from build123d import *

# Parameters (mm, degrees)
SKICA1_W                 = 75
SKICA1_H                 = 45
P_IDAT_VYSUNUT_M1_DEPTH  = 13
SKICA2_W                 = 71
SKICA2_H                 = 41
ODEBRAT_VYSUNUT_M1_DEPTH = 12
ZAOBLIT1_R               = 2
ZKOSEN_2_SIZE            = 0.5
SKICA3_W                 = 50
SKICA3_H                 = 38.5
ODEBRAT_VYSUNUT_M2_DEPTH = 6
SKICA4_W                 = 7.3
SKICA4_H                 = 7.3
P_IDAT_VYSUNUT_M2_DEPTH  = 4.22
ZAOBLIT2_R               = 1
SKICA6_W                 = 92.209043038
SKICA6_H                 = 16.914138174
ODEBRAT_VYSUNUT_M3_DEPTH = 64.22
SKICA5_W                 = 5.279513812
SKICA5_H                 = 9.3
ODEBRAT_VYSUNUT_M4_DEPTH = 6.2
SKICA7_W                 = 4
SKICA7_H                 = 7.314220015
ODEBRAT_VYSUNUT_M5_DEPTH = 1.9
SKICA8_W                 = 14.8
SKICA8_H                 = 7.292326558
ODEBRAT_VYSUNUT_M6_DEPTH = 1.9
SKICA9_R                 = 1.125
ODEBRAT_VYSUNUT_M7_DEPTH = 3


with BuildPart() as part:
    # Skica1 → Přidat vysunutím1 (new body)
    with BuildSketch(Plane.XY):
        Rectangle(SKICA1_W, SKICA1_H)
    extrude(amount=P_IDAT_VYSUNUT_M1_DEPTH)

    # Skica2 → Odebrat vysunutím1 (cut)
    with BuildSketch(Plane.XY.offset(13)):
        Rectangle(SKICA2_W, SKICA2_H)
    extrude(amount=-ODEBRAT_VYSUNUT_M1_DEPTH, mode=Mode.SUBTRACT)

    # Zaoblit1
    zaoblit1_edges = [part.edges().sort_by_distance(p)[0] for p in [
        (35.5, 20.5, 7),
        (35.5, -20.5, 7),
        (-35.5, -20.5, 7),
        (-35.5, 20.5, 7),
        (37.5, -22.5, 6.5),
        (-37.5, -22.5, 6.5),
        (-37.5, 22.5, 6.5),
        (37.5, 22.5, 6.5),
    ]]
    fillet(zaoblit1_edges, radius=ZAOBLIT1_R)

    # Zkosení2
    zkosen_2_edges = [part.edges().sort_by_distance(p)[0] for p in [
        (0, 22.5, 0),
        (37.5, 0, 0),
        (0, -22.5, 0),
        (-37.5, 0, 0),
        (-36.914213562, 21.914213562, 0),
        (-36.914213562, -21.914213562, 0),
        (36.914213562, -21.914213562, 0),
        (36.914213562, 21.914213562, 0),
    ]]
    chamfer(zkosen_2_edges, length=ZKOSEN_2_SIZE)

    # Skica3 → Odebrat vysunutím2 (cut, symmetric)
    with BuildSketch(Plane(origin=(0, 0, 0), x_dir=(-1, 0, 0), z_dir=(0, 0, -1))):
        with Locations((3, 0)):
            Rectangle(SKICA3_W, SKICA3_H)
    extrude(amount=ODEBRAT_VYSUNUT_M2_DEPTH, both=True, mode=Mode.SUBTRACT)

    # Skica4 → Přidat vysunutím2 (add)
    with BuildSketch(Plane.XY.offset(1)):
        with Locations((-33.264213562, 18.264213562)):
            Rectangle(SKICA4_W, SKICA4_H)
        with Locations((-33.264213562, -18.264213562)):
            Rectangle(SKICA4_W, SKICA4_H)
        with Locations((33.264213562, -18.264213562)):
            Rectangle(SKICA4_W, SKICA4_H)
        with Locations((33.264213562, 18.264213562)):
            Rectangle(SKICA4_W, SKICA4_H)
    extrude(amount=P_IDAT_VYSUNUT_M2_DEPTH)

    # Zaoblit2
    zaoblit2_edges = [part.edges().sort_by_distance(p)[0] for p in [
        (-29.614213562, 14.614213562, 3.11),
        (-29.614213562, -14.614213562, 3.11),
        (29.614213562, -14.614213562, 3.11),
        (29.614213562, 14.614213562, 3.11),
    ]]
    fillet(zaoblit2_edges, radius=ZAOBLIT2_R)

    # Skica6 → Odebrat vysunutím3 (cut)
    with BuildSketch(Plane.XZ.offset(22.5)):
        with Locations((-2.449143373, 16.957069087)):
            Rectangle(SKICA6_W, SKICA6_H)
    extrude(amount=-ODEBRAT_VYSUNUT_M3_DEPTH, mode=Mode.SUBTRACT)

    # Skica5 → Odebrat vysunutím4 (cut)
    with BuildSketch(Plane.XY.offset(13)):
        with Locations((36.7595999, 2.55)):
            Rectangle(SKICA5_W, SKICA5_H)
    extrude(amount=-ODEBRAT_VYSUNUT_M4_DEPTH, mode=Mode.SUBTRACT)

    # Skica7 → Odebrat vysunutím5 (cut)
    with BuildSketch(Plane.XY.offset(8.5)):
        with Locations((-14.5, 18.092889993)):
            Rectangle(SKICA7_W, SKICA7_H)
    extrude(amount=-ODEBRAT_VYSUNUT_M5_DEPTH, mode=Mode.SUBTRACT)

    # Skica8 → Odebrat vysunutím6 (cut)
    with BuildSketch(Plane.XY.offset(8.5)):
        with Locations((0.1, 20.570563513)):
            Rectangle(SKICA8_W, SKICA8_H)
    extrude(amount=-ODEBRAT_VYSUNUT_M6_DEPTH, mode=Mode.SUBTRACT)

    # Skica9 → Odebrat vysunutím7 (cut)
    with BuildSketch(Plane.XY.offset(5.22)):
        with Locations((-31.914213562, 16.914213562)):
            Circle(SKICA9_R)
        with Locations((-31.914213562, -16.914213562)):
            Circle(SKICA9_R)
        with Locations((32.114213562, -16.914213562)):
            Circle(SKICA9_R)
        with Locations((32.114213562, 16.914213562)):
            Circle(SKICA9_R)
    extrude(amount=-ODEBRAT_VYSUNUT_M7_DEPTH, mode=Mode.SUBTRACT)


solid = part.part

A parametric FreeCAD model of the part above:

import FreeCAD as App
import Part
import Sketcher
Q = App.Units.Quantity


def edges_at(feature, points):
    """Names of the edges that pass closest to the given points."""
    edges = feature.Shape.Edges
    near = lambda p: min(range(len(edges)), key=lambda i: edges[i].distToShape(Part.Vertex(*p))[0])
    return sorted({f"Edge{near(p) + 1}" for p in points})

doc = App.newDocument("Part")
body = doc.addObject("PartDesign::Body", "Body")

# Sketch on XY plane
sketch1 = body.newObject("Sketcher::SketchObject", "Sketch")
sketch1.AttachmentSupport = (doc.getObject("XY_Plane"), [""])
sketch1.MapMode = "FlatFace"
sketch1.addGeometry(Part.LineSegment(App.Vector(-38, 22, 0), App.Vector(-38, -22, 0)), False)
sketch1.addGeometry(Part.LineSegment(App.Vector(-38, -22, 0), App.Vector(38, -22, 0)), False)
sketch1.addGeometry(Part.LineSegment(App.Vector(38, -22, 0), App.Vector(38, 22, 0)), False)
sketch1.addGeometry(Part.LineSegment(App.Vector(38, 22, 0), App.Vector(-38, 22, 0)), False)
sketch1.addConstraint(Sketcher.Constraint("Coincident", 0, 2, 1, 1))
sketch1.addConstraint(Sketcher.Constraint("Coincident", 1, 2, 2, 1))
sketch1.addConstraint(Sketcher.Constraint("Coincident", 2, 2, 3, 1))
sketch1.addConstraint(Sketcher.Constraint("Coincident", 3, 2, 0, 1))
sketch1.addConstraint(Sketcher.Constraint("Vertical", 0))
sketch1.addConstraint(Sketcher.Constraint("Horizontal", 1))
sketch1.addConstraint(Sketcher.Constraint("Vertical", 2))
sketch1.addConstraint(Sketcher.Constraint("Horizontal", 3))
sketch1.addConstraint(Sketcher.Constraint("Symmetric", 0, 2, 2, 2, -1, 1))
sketch1.addConstraint(Sketcher.Constraint("DistanceX", 1, 1, 1, 2, Q("75 mm")))
sketch1.addConstraint(Sketcher.Constraint("DistanceY", 0, 2, 0, 1, Q("45 mm")))
pad1 = body.newObject("PartDesign::Pad", "Pad")
pad1.Profile = sketch1
pad1.Length = 13

# Sketch on XY plane
sketch2 = body.newObject("Sketcher::SketchObject", "Sketch001")
sketch2.AttachmentSupport = (doc.getObject("XY_Plane"), [""])
sketch2.MapMode = "FlatFace"
sketch2.AttachmentOffset = App.Placement(App.Vector(0, 0, 13), App.Rotation())
sketch2.addGeometry(Part.LineSegment(App.Vector(-36, 20, 0), App.Vector(-36, -20, 0)), False)
sketch2.addGeometry(Part.LineSegment(App.Vector(-36, -20, 0), App.Vector(36, -20, 0)), False)
sketch2.addGeometry(Part.LineSegment(App.Vector(36, -20, 0), App.Vector(36, 20, 0)), False)
sketch2.addGeometry(Part.LineSegment(App.Vector(36, 20, 0), App.Vector(-36, 20, 0)), False)
sketch2.addConstraint(Sketcher.Constraint("Coincident", 0, 2, 1, 1))
sketch2.addConstraint(Sketcher.Constraint("Coincident", 1, 2, 2, 1))
sketch2.addConstraint(Sketcher.Constraint("Coincident", 2, 2, 3, 1))
sketch2.addConstraint(Sketcher.Constraint("Coincident", 3, 2, 0, 1))
sketch2.addConstraint(Sketcher.Constraint("Vertical", 0))
sketch2.addConstraint(Sketcher.Constraint("Horizontal", 1))
sketch2.addConstraint(Sketcher.Constraint("Vertical", 2))
sketch2.addConstraint(Sketcher.Constraint("Horizontal", 3))
sketch2.addConstraint(Sketcher.Constraint("Symmetric", 0, 2, 2, 2, -1, 1))
sketch2.addConstraint(Sketcher.Constraint("DistanceX", 1, 1, 1, 2, Q("71 mm")))
sketch2.addConstraint(Sketcher.Constraint("DistanceY", 0, 2, 0, 1, Q("41 mm")))
pocket1 = body.newObject("PartDesign::Pocket", "Pocket")
pocket1.Profile = sketch2
pocket1.Length = 12
doc.recompute()

fillet = body.newObject("PartDesign::Fillet", "Fillet")
fillet.Base = (pocket1, edges_at(pocket1, [
    (35.5, 20.5, 7),
    (35.5, -20.5, 7),
    (-35.5, -20.5, 7),
    (-35.5, 20.5, 7),
    (37.5, -22.5, 6.5),
    (-37.5, -22.5, 6.5),
    (-37.5, 22.5, 6.5),
    (37.5, 22.5, 6.5),
]))
fillet.Radius = 2
doc.recompute()

chamfer = body.newObject("PartDesign::Chamfer", "Chamfer")
chamfer.Base = (fillet, edges_at(fillet, [
    (0, 22.5, 0),
    (37.5, 0, 0),
    (0, -22.5, 0),
    (-37.5, 0, 0),
    (-36.914, 21.914, 0),
    (-36.914, -21.914, 0),
    (36.914, -21.914, 0),
    (36.914, 21.914, 0),
]))
chamfer.Size = 0.5

# Sketch on XY plane
sketch3 = body.newObject("Sketcher::SketchObject", "Sketch002")
sketch3.AttachmentSupport = (doc.getObject("XY_Plane"), [""])
sketch3.MapMode = "FlatFace"
sketch3.addGeometry(Part.LineSegment(App.Vector(22, 19, 0), App.Vector(22, -19, 0)), False)
sketch3.addGeometry(Part.LineSegment(App.Vector(22, -19, 0), App.Vector(-28, -19, 0)), False)
sketch3.addGeometry(Part.LineSegment(App.Vector(-28, -19, 0), App.Vector(-28, 19, 0)), False)
sketch3.addGeometry(Part.LineSegment(App.Vector(-28, 19, 0), App.Vector(22, 19, 0)), False)
sketch3.addConstraint(Sketcher.Constraint("Coincident", 0, 2, 1, 1))
sketch3.addConstraint(Sketcher.Constraint("Coincident", 1, 2, 2, 1))
sketch3.addConstraint(Sketcher.Constraint("Coincident", 2, 2, 3, 1))
sketch3.addConstraint(Sketcher.Constraint("Coincident", 3, 2, 0, 1))
sketch3.addConstraint(Sketcher.Constraint("Vertical", 0))
sketch3.addConstraint(Sketcher.Constraint("Horizontal", 1))
sketch3.addConstraint(Sketcher.Constraint("Vertical", 2))
sketch3.addConstraint(Sketcher.Constraint("Horizontal", 3))
sketch3.addConstraint(Sketcher.Constraint("DistanceX", 1, 2, 1, 1, Q("50 mm")))
sketch3.addConstraint(Sketcher.Constraint("DistanceY", 0, 2, 0, 1, Q("38.5 mm")))
sketch3.addConstraint(Sketcher.Constraint("DistanceX", -1, 1, 0, 2, Q("22 mm")))
sketch3.addConstraint(Sketcher.Constraint("DistanceY", 0, 2, -1, 1, Q("19.25 mm")))
pocket2 = body.newObject("PartDesign::Pocket", "Pocket001")
pocket2.Profile = sketch3
pocket2.Length = 12
pocket2.Midplane = True

# Sketch on XY plane
sketch4 = body.newObject("Sketcher::SketchObject", "Sketch003")
sketch4.AttachmentSupport = (doc.getObject("XY_Plane"), [""])
sketch4.MapMode = "FlatFace"
sketch4.AttachmentOffset = App.Placement(App.Vector(0, 0, 1), App.Rotation())
sketch4.addGeometry(Part.LineSegment(App.Vector(-37, 22, 0), App.Vector(-37, 15, 0)), False)
sketch4.addGeometry(Part.LineSegment(App.Vector(-37, 15, 0), App.Vector(-30, 15, 0)), False)
sketch4.addGeometry(Part.LineSegment(App.Vector(-30, 15, 0), App.Vector(-30, 22, 0)), False)
sketch4.addGeometry(Part.LineSegment(App.Vector(-30, 22, 0), App.Vector(-37, 22, 0)), False)
sketch4.addGeometry(Part.LineSegment(App.Vector(-37, -15, 0), App.Vector(-37, -22, 0)), False)
sketch4.addGeometry(Part.LineSegment(App.Vector(-37, -22, 0), App.Vector(-30, -22, 0)), False)
sketch4.addGeometry(Part.LineSegment(App.Vector(-30, -22, 0), App.Vector(-30, -15, 0)), False)
sketch4.addGeometry(Part.LineSegment(App.Vector(-30, -15, 0), App.Vector(-37, -15, 0)), False)
sketch4.addGeometry(Part.LineSegment(App.Vector(30, -15, 0), App.Vector(30, -22, 0)), False)
sketch4.addGeometry(Part.LineSegment(App.Vector(30, -22, 0), App.Vector(37, -22, 0)), False)
sketch4.addGeometry(Part.LineSegment(App.Vector(37, -22, 0), App.Vector(37, -15, 0)), False)
sketch4.addGeometry(Part.LineSegment(App.Vector(37, -15, 0), App.Vector(30, -15, 0)), False)
sketch4.addGeometry(Part.LineSegment(App.Vector(30, 22, 0), App.Vector(30, 15, 0)), False)
sketch4.addGeometry(Part.LineSegment(App.Vector(30, 15, 0), App.Vector(37, 15, 0)), False)
sketch4.addGeometry(Part.LineSegment(App.Vector(37, 15, 0), App.Vector(37, 22, 0)), False)
sketch4.addGeometry(Part.LineSegment(App.Vector(37, 22, 0), App.Vector(30, 22, 0)), False)
sketch4.addConstraint(Sketcher.Constraint("Coincident", 0, 2, 1, 1))
sketch4.addConstraint(Sketcher.Constraint("Coincident", 1, 2, 2, 1))
sketch4.addConstraint(Sketcher.Constraint("Coincident", 2, 2, 3, 1))
sketch4.addConstraint(Sketcher.Constraint("Coincident", 3, 2, 0, 1))
sketch4.addConstraint(Sketcher.Constraint("Coincident", 4, 2, 5, 1))
sketch4.addConstraint(Sketcher.Constraint("Coincident", 5, 2, 6, 1))
sketch4.addConstraint(Sketcher.Constraint("Coincident", 6, 2, 7, 1))
sketch4.addConstraint(Sketcher.Constraint("Coincident", 7, 2, 4, 1))
sketch4.addConstraint(Sketcher.Constraint("Coincident", 8, 2, 9, 1))
sketch4.addConstraint(Sketcher.Constraint("Coincident", 9, 2, 10, 1))
sketch4.addConstraint(Sketcher.Constraint("Coincident", 10, 2, 11, 1))
sketch4.addConstraint(Sketcher.Constraint("Coincident", 11, 2, 8, 1))
sketch4.addConstraint(Sketcher.Constraint("Coincident", 12, 2, 13, 1))
sketch4.addConstraint(Sketcher.Constraint("Coincident", 13, 2, 14, 1))
sketch4.addConstraint(Sketcher.Constraint("Coincident", 14, 2, 15, 1))
sketch4.addConstraint(Sketcher.Constraint("Coincident", 15, 2, 12, 1))
sketch4.addConstraint(Sketcher.Constraint("Vertical", 0))
sketch4.addConstraint(Sketcher.Constraint("Horizontal", 1))
sketch4.addConstraint(Sketcher.Constraint("Vertical", 2))
sketch4.addConstraint(Sketcher.Constraint("Horizontal", 3))
sketch4.addConstraint(Sketcher.Constraint("Vertical", 4))
sketch4.addConstraint(Sketcher.Constraint("Horizontal", 5))
sketch4.addConstraint(Sketcher.Constraint("Vertical", 6))
sketch4.addConstraint(Sketcher.Constraint("Horizontal", 7))
sketch4.addConstraint(Sketcher.Constraint("Vertical", 8))
sketch4.addConstraint(Sketcher.Constraint("Horizontal", 9))
sketch4.addConstraint(Sketcher.Constraint("Vertical", 10))
sketch4.addConstraint(Sketcher.Constraint("Horizontal", 11))
sketch4.addConstraint(Sketcher.Constraint("Vertical", 12))
sketch4.addConstraint(Sketcher.Constraint("Horizontal", 13))
sketch4.addConstraint(Sketcher.Constraint("Vertical", 14))
sketch4.addConstraint(Sketcher.Constraint("Horizontal", 15))
sketch4.addConstraint(Sketcher.Constraint("Symmetric", 2, 2, 8, 2, -1, 1))
sketch4.addConstraint(Sketcher.Constraint("Symmetric", 0, 2, 10, 2, -1, 1))
sketch4.addConstraint(Sketcher.Constraint("Symmetric", 6, 2, 12, 2, -1, 1))
sketch4.addConstraint(Sketcher.Constraint("Symmetric", 4, 2, 14, 2, -1, 1))
sketch4.addConstraint(Sketcher.Constraint("Symmetric", 5, 2, 8, 2, -2))
sketch4.addConstraint(Sketcher.Constraint("Symmetric", 7, 2, 10, 2, -2))
sketch4.addConstraint(Sketcher.Constraint("Equal", 15, 0))
sketch4.addConstraint(Sketcher.Constraint("DistanceX", 1, 1, 1, 2, Q("7.3 mm")))
sketch4.addConstraint(Sketcher.Constraint("DistanceX", 0, 2, -1, 1, Q("36.914214 mm")))
sketch4.addConstraint(Sketcher.Constraint("DistanceY", -1, 1, 0, 2, Q("14.614214 mm")))
pad2 = body.newObject("PartDesign::Pad", "Pad001")
pad2.Profile = sketch4
pad2.Length = 4.22
doc.recompute()

fillet2 = body.newObject("PartDesign::Fillet", "Fillet001")
fillet2.Base = (pad2, edges_at(pad2, [
    (-29.614, 14.614, 3.11),
    (-29.614, -14.614, 3.11),
    (29.614, -14.614, 3.11),
    (29.614, 14.614, 3.11),
]))
fillet2.Radius = 1

# Sketch on XZ plane
sketch5 = body.newObject("Sketcher::SketchObject", "Sketch004")
sketch5.AttachmentSupport = (doc.getObject("XZ_Plane"), [""])
sketch5.MapMode = "FlatFace"
sketch5.AttachmentOffset = App.Placement(App.Vector(0, 0, 22.5), App.Rotation())
sketch5.addGeometry(Part.LineSegment(App.Vector(-49, 25, 0), App.Vector(-49, 8, 0)), False)
sketch5.addGeometry(Part.LineSegment(App.Vector(-49, 8, 0), App.Vector(44, 8, 0)), False)
sketch5.addGeometry(Part.LineSegment(App.Vector(44, 8, 0), App.Vector(44, 25, 0)), False)
sketch5.addGeometry(Part.LineSegment(App.Vector(44, 25, 0), App.Vector(-49, 25, 0)), False)
sketch5.addConstraint(Sketcher.Constraint("Coincident", 0, 2, 1, 1))
sketch5.addConstraint(Sketcher.Constraint("Coincident", 1, 2, 2, 1))
sketch5.addConstraint(Sketcher.Constraint("Coincident", 2, 2, 3, 1))
sketch5.addConstraint(Sketcher.Constraint("Coincident", 3, 2, 0, 1))
sketch5.addConstraint(Sketcher.Constraint("Vertical", 0))
sketch5.addConstraint(Sketcher.Constraint("Horizontal", 1))
sketch5.addConstraint(Sketcher.Constraint("Vertical", 2))
sketch5.addConstraint(Sketcher.Constraint("Horizontal", 3))
sketch5.addConstraint(Sketcher.Constraint("DistanceY", -1, 1, 0, 2, Q("8.5 mm")))
sketch5.addConstraint(Sketcher.Constraint("DistanceY", 0, 2, 0, 1, Q("16.914138 mm")))
sketch5.addConstraint(Sketcher.Constraint("DistanceX", 1, 1, 1, 2, Q("92.209043 mm")))
sketch5.addConstraint(Sketcher.Constraint("DistanceX", -1, 1, 1, 2, Q("43.655378 mm")))
pocket3 = body.newObject("PartDesign::Pocket", "Pocket002")
pocket3.Profile = sketch5
pocket3.Length = 64.22

# Sketch on XY plane
sketch6 = body.newObject("Sketcher::SketchObject", "Sketch005")
sketch6.AttachmentSupport = (doc.getObject("XY_Plane"), [""])
sketch6.MapMode = "FlatFace"
sketch6.AttachmentOffset = App.Placement(App.Vector(0, 0, 13), App.Rotation())
sketch6.addGeometry(Part.LineSegment(App.Vector(34, 7, 0), App.Vector(34, -2, 0)), False)
sketch6.addGeometry(Part.LineSegment(App.Vector(34, -2, 0), App.Vector(39, -2, 0)), False)
sketch6.addGeometry(Part.LineSegment(App.Vector(39, -2, 0), App.Vector(39, 7, 0)), False)
sketch6.addGeometry(Part.LineSegment(App.Vector(39, 7, 0), App.Vector(34, 7, 0)), False)
sketch6.addConstraint(Sketcher.Constraint("Coincident", 0, 2, 1, 1))
sketch6.addConstraint(Sketcher.Constraint("Coincident", 1, 2, 2, 1))
sketch6.addConstraint(Sketcher.Constraint("Coincident", 2, 2, 3, 1))
sketch6.addConstraint(Sketcher.Constraint("Coincident", 3, 2, 0, 1))
sketch6.addConstraint(Sketcher.Constraint("Vertical", 0))
sketch6.addConstraint(Sketcher.Constraint("Horizontal", 1))
sketch6.addConstraint(Sketcher.Constraint("Vertical", 2))
sketch6.addConstraint(Sketcher.Constraint("Horizontal", 3))
sketch6.addConstraint(Sketcher.Constraint("DistanceY", 0, 2, 0, 1, Q("9.3 mm")))
sketch6.addConstraint(Sketcher.Constraint("DistanceY", 0, 2, -1, 1, Q("2.1 mm")))
sketch6.addConstraint(Sketcher.Constraint("DistanceX", 1, 1, 1, 2, Q("5.279514 mm")))
sketch6.addConstraint(Sketcher.Constraint("DistanceX", -1, 1, 0, 2, Q("34.119843 mm")))
pocket4 = body.newObject("PartDesign::Pocket", "Pocket003")
pocket4.Profile = sketch6
pocket4.Length = 6.2

# Sketch on XY plane
sketch7 = body.newObject("Sketcher::SketchObject", "Sketch006")
sketch7.AttachmentSupport = (doc.getObject("XY_Plane"), [""])
sketch7.MapMode = "FlatFace"
sketch7.AttachmentOffset = App.Placement(App.Vector(0, 0, 8.5), App.Rotation())
sketch7.addGeometry(Part.LineSegment(App.Vector(-16.5, 21.8, 0), App.Vector(-16.5, 14.4, 0)), False)
sketch7.addGeometry(Part.LineSegment(App.Vector(-16.5, 14.4, 0), App.Vector(-12.5, 14.4, 0)), False)
sketch7.addGeometry(Part.LineSegment(App.Vector(-12.5, 14.4, 0), App.Vector(-12.5, 21.8, 0)), False)
sketch7.addGeometry(Part.LineSegment(App.Vector(-12.5, 21.8, 0), App.Vector(-16.5, 21.8, 0)), False)
sketch7.addConstraint(Sketcher.Constraint("Coincident", 0, 2, 1, 1))
sketch7.addConstraint(Sketcher.Constraint("Coincident", 1, 2, 2, 1))
sketch7.addConstraint(Sketcher.Constraint("Coincident", 2, 2, 3, 1))
sketch7.addConstraint(Sketcher.Constraint("Coincident", 3, 2, 0, 1))
sketch7.addConstraint(Sketcher.Constraint("Vertical", 0))
sketch7.addConstraint(Sketcher.Constraint("Horizontal", 1))
sketch7.addConstraint(Sketcher.Constraint("Vertical", 2))
sketch7.addConstraint(Sketcher.Constraint("Horizontal", 3))
sketch7.addConstraint(Sketcher.Constraint("DistanceX", 1, 1, 1, 2, Q("4 mm")))
sketch7.addConstraint(Sketcher.Constraint("DistanceX", 0, 2, -1, 1, Q("16.5 mm")))
sketch7.addConstraint(Sketcher.Constraint("DistanceY", -1, 1, 2, 2, Q("21.75 mm")))
sketch7.addConstraint(Sketcher.Constraint("DistanceY", 0, 2, 0, 1, Q("7.31422 mm")))
pocket5 = body.newObject("PartDesign::Pocket", "Pocket004")
pocket5.Profile = sketch7
pocket5.Length = 1.9

# Sketch on XY plane
sketch8 = body.newObject("Sketcher::SketchObject", "Sketch007")
sketch8.AttachmentSupport = (doc.getObject("XY_Plane"), [""])
sketch8.MapMode = "FlatFace"
sketch8.AttachmentOffset = App.Placement(App.Vector(0, 0, 8.5), App.Rotation())
sketch8.addGeometry(Part.LineSegment(App.Vector(-7, 24, 0), App.Vector(-7, 17, 0)), False)
sketch8.addGeometry(Part.LineSegment(App.Vector(-7, 17, 0), App.Vector(8, 17, 0)), False)
sketch8.addGeometry(Part.LineSegment(App.Vector(8, 17, 0), App.Vector(8, 24, 0)), False)
sketch8.addGeometry(Part.LineSegment(App.Vector(8, 24, 0), App.Vector(-7, 24, 0)), False)
sketch8.addConstraint(Sketcher.Constraint("Coincident", 0, 2, 1, 1))
sketch8.addConstraint(Sketcher.Constraint("Coincident", 1, 2, 2, 1))
sketch8.addConstraint(Sketcher.Constraint("Coincident", 2, 2, 3, 1))
sketch8.addConstraint(Sketcher.Constraint("Coincident", 3, 2, 0, 1))
sketch8.addConstraint(Sketcher.Constraint("Vertical", 0))
sketch8.addConstraint(Sketcher.Constraint("Horizontal", 1))
sketch8.addConstraint(Sketcher.Constraint("Vertical", 2))
sketch8.addConstraint(Sketcher.Constraint("Horizontal", 3))
sketch8.addConstraint(Sketcher.Constraint("DistanceX", 1, 1, 1, 2, Q("14.8 mm")))
sketch8.addConstraint(Sketcher.Constraint("DistanceX", 0, 2, -1, 1, Q("7.3 mm")))
sketch8.addConstraint(Sketcher.Constraint("DistanceY", -1, 1, 0, 2, Q("16.9244 mm")))
sketch8.addConstraint(Sketcher.Constraint("DistanceY", 0, 2, 0, 1, Q("7.292327 mm")))
pocket6 = body.newObject("PartDesign::Pocket", "Pocket005")
pocket6.Profile = sketch8
pocket6.Length = 1.9

# Sketch on XY plane
sketch9 = body.newObject("Sketcher::SketchObject", "Sketch008")
sketch9.AttachmentSupport = (doc.getObject("XY_Plane"), [""])
sketch9.MapMode = "FlatFace"
sketch9.AttachmentOffset = App.Placement(App.Vector(0, 0, 5.22), App.Rotation())
sketch9.addGeometry(Part.Circle(App.Vector(-31.9, 16.9, 0), App.Vector(0, 0, 1), 1.1), False)
sketch9.addGeometry(Part.Circle(App.Vector(-31.9, -16.9, 0), App.Vector(0, 0, 1), 1.1), False)
sketch9.addGeometry(Part.Circle(App.Vector(32.1, -16.9, 0), App.Vector(0, 0, 1), 1.1), False)
sketch9.addGeometry(Part.Circle(App.Vector(32.1, 16.9, 0), App.Vector(0, 0, 1), 1.1), False)
sketch9.addConstraint(Sketcher.Constraint("Equal", 0, 1))
sketch9.addConstraint(Sketcher.Constraint("Equal", 1, 2))
sketch9.addConstraint(Sketcher.Constraint("Equal", 2, 3))
sketch9.addConstraint(Sketcher.Constraint("Symmetric", 0, 3, 1, 3, -1))
sketch9.addConstraint(Sketcher.Constraint("Symmetric", 2, 3, 3, 3, -1))
sketch9.addConstraint(Sketcher.Constraint("Horizontal", 1, 3, 2, 3))
sketch9.addConstraint(Sketcher.Constraint("Diameter", 0, Q("2.25 mm")))
sketch9.addConstraint(Sketcher.Constraint("DistanceX", 0, 3, -1, 1, Q("31.914214 mm")))
sketch9.addConstraint(Sketcher.Constraint("DistanceY", -1, 1, 0, 3, Q("16.914214 mm")))
sketch9.addConstraint(Sketcher.Constraint("DistanceX", -1, 1, 2, 3, Q("32.114214 mm")))
pocket7 = body.newObject("PartDesign::Pocket", "Pocket006")
pocket7.Profile = sketch9
pocket7.Length = 3

doc.recompute()
